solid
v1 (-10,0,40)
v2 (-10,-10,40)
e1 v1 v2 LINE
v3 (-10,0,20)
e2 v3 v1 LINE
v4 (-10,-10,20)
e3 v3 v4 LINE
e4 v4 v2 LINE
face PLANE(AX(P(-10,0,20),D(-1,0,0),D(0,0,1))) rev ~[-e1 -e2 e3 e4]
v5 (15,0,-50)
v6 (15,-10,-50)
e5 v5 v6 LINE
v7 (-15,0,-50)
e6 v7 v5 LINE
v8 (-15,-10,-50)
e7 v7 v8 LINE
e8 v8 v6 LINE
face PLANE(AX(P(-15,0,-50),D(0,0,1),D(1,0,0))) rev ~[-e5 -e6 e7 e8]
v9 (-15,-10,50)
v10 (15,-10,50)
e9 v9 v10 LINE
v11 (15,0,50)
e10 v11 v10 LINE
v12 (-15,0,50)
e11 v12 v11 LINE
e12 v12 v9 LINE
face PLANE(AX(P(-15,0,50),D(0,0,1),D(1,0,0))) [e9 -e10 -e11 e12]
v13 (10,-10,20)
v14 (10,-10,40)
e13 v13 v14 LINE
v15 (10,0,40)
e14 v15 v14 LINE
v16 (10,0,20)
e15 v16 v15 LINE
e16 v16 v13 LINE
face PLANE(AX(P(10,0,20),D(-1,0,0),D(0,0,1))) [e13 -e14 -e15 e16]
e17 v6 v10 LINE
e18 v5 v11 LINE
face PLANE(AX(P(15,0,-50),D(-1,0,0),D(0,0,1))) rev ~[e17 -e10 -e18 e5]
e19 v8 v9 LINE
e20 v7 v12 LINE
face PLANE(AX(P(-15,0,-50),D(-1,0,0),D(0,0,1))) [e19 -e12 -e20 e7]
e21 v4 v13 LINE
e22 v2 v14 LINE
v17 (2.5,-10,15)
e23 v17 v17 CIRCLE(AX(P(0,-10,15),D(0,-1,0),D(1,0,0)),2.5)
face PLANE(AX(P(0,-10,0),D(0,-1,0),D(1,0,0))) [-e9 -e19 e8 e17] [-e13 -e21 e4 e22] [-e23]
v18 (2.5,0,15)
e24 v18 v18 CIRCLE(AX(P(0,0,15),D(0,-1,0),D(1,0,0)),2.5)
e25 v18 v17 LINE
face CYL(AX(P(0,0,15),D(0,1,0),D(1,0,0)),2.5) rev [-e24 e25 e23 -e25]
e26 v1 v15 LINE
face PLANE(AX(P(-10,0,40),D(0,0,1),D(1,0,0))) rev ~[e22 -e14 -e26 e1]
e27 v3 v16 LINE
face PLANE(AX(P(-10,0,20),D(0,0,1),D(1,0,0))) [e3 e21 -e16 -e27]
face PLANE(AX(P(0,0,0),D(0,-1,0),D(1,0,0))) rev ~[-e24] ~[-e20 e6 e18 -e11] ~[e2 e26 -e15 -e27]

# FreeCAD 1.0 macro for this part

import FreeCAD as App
import Part
import Sketcher


def add_polygon(sketch, points):
    """Adds a closed chain of lines whose ends are joined by coincident constraints."""
    first, n = sketch.GeometryCount, len(points)
    for a, b in zip(points, points[1:] + points[:1]):
        sketch.addGeometry(Part.LineSegment(App.Vector(*a, 0), App.Vector(*b, 0)), False)
    for i in range(n):
        sketch.addConstraint(Sketcher.Constraint("Coincident", first + i, 2, first + (i + 1) % n, 1))

doc = App.newDocument("Part")
body = doc.addObject("PartDesign::Body", "Body")

# Sketch on XZ plane
sketch1 = doc.addObject("Sketcher::SketchObject", "Sketch")
body.addObject(sketch1)
sketch1.AttachmentSupport = (doc.XZ_Plane, [""])
sketch1.MapMode = "FlatFace"
add_polygon(sketch1, [(-15, 50), (-15, -50), (15, -50), (15, 50)])  # lines 0-3
sketch1.addGeometry(Part.Circle(App.Vector(0, 15, 0), App.Vector(0, 0, 1), 2.5), False)  # 4
add_polygon(sketch1, [(10, 20), (-10, 20), (-10, 40), (10, 40)])  # lines 5-8
sketch1.addConstraint([
    Sketcher.Constraint("Vertical", 0),
    Sketcher.Constraint("Horizontal", 1),
    Sketcher.Constraint("Vertical", 2),
    Sketcher.Constraint("Horizontal", 3),
    Sketcher.Constraint("Horizontal", 5),
    Sketcher.Constraint("Vertical", 6),
    Sketcher.Constraint("Horizontal", 7),
    Sketcher.Constraint("Vertical", 8),
    Sketcher.Constraint("Symmetric", 0, 2, 2, 2, -1, 1),
    Sketcher.Constraint("PointOnObject", 4, 3, -2),
    Sketcher.Constraint("Equal", 7, 6),
    Sketcher.Constraint("Diameter", 4, 5.0),
    Sketcher.Constraint("DistanceX", 1, 1, 1, 2, 30.0),
    Sketcher.Constraint("DistanceX", 5, 2, 5, 1, 20.0),
    Sketcher.Constraint("DistanceY", 0, 2, 0, 1, 100.0),
    Sketcher.Constraint("DistanceY", -1, 1, 4, 3, 15.0),
    Sketcher.Constraint("DistanceX", 5, 2, -1, 1, 10.0),
    Sketcher.Constraint("DistanceY", -1, 1, 5, 2, 20.0),
])
pad1 = doc.addObject("PartDesign::Pad", "Pad")
body.addObject(pad1)
pad1.Profile = sketch1
pad1.Length = 10

doc.recompute()
